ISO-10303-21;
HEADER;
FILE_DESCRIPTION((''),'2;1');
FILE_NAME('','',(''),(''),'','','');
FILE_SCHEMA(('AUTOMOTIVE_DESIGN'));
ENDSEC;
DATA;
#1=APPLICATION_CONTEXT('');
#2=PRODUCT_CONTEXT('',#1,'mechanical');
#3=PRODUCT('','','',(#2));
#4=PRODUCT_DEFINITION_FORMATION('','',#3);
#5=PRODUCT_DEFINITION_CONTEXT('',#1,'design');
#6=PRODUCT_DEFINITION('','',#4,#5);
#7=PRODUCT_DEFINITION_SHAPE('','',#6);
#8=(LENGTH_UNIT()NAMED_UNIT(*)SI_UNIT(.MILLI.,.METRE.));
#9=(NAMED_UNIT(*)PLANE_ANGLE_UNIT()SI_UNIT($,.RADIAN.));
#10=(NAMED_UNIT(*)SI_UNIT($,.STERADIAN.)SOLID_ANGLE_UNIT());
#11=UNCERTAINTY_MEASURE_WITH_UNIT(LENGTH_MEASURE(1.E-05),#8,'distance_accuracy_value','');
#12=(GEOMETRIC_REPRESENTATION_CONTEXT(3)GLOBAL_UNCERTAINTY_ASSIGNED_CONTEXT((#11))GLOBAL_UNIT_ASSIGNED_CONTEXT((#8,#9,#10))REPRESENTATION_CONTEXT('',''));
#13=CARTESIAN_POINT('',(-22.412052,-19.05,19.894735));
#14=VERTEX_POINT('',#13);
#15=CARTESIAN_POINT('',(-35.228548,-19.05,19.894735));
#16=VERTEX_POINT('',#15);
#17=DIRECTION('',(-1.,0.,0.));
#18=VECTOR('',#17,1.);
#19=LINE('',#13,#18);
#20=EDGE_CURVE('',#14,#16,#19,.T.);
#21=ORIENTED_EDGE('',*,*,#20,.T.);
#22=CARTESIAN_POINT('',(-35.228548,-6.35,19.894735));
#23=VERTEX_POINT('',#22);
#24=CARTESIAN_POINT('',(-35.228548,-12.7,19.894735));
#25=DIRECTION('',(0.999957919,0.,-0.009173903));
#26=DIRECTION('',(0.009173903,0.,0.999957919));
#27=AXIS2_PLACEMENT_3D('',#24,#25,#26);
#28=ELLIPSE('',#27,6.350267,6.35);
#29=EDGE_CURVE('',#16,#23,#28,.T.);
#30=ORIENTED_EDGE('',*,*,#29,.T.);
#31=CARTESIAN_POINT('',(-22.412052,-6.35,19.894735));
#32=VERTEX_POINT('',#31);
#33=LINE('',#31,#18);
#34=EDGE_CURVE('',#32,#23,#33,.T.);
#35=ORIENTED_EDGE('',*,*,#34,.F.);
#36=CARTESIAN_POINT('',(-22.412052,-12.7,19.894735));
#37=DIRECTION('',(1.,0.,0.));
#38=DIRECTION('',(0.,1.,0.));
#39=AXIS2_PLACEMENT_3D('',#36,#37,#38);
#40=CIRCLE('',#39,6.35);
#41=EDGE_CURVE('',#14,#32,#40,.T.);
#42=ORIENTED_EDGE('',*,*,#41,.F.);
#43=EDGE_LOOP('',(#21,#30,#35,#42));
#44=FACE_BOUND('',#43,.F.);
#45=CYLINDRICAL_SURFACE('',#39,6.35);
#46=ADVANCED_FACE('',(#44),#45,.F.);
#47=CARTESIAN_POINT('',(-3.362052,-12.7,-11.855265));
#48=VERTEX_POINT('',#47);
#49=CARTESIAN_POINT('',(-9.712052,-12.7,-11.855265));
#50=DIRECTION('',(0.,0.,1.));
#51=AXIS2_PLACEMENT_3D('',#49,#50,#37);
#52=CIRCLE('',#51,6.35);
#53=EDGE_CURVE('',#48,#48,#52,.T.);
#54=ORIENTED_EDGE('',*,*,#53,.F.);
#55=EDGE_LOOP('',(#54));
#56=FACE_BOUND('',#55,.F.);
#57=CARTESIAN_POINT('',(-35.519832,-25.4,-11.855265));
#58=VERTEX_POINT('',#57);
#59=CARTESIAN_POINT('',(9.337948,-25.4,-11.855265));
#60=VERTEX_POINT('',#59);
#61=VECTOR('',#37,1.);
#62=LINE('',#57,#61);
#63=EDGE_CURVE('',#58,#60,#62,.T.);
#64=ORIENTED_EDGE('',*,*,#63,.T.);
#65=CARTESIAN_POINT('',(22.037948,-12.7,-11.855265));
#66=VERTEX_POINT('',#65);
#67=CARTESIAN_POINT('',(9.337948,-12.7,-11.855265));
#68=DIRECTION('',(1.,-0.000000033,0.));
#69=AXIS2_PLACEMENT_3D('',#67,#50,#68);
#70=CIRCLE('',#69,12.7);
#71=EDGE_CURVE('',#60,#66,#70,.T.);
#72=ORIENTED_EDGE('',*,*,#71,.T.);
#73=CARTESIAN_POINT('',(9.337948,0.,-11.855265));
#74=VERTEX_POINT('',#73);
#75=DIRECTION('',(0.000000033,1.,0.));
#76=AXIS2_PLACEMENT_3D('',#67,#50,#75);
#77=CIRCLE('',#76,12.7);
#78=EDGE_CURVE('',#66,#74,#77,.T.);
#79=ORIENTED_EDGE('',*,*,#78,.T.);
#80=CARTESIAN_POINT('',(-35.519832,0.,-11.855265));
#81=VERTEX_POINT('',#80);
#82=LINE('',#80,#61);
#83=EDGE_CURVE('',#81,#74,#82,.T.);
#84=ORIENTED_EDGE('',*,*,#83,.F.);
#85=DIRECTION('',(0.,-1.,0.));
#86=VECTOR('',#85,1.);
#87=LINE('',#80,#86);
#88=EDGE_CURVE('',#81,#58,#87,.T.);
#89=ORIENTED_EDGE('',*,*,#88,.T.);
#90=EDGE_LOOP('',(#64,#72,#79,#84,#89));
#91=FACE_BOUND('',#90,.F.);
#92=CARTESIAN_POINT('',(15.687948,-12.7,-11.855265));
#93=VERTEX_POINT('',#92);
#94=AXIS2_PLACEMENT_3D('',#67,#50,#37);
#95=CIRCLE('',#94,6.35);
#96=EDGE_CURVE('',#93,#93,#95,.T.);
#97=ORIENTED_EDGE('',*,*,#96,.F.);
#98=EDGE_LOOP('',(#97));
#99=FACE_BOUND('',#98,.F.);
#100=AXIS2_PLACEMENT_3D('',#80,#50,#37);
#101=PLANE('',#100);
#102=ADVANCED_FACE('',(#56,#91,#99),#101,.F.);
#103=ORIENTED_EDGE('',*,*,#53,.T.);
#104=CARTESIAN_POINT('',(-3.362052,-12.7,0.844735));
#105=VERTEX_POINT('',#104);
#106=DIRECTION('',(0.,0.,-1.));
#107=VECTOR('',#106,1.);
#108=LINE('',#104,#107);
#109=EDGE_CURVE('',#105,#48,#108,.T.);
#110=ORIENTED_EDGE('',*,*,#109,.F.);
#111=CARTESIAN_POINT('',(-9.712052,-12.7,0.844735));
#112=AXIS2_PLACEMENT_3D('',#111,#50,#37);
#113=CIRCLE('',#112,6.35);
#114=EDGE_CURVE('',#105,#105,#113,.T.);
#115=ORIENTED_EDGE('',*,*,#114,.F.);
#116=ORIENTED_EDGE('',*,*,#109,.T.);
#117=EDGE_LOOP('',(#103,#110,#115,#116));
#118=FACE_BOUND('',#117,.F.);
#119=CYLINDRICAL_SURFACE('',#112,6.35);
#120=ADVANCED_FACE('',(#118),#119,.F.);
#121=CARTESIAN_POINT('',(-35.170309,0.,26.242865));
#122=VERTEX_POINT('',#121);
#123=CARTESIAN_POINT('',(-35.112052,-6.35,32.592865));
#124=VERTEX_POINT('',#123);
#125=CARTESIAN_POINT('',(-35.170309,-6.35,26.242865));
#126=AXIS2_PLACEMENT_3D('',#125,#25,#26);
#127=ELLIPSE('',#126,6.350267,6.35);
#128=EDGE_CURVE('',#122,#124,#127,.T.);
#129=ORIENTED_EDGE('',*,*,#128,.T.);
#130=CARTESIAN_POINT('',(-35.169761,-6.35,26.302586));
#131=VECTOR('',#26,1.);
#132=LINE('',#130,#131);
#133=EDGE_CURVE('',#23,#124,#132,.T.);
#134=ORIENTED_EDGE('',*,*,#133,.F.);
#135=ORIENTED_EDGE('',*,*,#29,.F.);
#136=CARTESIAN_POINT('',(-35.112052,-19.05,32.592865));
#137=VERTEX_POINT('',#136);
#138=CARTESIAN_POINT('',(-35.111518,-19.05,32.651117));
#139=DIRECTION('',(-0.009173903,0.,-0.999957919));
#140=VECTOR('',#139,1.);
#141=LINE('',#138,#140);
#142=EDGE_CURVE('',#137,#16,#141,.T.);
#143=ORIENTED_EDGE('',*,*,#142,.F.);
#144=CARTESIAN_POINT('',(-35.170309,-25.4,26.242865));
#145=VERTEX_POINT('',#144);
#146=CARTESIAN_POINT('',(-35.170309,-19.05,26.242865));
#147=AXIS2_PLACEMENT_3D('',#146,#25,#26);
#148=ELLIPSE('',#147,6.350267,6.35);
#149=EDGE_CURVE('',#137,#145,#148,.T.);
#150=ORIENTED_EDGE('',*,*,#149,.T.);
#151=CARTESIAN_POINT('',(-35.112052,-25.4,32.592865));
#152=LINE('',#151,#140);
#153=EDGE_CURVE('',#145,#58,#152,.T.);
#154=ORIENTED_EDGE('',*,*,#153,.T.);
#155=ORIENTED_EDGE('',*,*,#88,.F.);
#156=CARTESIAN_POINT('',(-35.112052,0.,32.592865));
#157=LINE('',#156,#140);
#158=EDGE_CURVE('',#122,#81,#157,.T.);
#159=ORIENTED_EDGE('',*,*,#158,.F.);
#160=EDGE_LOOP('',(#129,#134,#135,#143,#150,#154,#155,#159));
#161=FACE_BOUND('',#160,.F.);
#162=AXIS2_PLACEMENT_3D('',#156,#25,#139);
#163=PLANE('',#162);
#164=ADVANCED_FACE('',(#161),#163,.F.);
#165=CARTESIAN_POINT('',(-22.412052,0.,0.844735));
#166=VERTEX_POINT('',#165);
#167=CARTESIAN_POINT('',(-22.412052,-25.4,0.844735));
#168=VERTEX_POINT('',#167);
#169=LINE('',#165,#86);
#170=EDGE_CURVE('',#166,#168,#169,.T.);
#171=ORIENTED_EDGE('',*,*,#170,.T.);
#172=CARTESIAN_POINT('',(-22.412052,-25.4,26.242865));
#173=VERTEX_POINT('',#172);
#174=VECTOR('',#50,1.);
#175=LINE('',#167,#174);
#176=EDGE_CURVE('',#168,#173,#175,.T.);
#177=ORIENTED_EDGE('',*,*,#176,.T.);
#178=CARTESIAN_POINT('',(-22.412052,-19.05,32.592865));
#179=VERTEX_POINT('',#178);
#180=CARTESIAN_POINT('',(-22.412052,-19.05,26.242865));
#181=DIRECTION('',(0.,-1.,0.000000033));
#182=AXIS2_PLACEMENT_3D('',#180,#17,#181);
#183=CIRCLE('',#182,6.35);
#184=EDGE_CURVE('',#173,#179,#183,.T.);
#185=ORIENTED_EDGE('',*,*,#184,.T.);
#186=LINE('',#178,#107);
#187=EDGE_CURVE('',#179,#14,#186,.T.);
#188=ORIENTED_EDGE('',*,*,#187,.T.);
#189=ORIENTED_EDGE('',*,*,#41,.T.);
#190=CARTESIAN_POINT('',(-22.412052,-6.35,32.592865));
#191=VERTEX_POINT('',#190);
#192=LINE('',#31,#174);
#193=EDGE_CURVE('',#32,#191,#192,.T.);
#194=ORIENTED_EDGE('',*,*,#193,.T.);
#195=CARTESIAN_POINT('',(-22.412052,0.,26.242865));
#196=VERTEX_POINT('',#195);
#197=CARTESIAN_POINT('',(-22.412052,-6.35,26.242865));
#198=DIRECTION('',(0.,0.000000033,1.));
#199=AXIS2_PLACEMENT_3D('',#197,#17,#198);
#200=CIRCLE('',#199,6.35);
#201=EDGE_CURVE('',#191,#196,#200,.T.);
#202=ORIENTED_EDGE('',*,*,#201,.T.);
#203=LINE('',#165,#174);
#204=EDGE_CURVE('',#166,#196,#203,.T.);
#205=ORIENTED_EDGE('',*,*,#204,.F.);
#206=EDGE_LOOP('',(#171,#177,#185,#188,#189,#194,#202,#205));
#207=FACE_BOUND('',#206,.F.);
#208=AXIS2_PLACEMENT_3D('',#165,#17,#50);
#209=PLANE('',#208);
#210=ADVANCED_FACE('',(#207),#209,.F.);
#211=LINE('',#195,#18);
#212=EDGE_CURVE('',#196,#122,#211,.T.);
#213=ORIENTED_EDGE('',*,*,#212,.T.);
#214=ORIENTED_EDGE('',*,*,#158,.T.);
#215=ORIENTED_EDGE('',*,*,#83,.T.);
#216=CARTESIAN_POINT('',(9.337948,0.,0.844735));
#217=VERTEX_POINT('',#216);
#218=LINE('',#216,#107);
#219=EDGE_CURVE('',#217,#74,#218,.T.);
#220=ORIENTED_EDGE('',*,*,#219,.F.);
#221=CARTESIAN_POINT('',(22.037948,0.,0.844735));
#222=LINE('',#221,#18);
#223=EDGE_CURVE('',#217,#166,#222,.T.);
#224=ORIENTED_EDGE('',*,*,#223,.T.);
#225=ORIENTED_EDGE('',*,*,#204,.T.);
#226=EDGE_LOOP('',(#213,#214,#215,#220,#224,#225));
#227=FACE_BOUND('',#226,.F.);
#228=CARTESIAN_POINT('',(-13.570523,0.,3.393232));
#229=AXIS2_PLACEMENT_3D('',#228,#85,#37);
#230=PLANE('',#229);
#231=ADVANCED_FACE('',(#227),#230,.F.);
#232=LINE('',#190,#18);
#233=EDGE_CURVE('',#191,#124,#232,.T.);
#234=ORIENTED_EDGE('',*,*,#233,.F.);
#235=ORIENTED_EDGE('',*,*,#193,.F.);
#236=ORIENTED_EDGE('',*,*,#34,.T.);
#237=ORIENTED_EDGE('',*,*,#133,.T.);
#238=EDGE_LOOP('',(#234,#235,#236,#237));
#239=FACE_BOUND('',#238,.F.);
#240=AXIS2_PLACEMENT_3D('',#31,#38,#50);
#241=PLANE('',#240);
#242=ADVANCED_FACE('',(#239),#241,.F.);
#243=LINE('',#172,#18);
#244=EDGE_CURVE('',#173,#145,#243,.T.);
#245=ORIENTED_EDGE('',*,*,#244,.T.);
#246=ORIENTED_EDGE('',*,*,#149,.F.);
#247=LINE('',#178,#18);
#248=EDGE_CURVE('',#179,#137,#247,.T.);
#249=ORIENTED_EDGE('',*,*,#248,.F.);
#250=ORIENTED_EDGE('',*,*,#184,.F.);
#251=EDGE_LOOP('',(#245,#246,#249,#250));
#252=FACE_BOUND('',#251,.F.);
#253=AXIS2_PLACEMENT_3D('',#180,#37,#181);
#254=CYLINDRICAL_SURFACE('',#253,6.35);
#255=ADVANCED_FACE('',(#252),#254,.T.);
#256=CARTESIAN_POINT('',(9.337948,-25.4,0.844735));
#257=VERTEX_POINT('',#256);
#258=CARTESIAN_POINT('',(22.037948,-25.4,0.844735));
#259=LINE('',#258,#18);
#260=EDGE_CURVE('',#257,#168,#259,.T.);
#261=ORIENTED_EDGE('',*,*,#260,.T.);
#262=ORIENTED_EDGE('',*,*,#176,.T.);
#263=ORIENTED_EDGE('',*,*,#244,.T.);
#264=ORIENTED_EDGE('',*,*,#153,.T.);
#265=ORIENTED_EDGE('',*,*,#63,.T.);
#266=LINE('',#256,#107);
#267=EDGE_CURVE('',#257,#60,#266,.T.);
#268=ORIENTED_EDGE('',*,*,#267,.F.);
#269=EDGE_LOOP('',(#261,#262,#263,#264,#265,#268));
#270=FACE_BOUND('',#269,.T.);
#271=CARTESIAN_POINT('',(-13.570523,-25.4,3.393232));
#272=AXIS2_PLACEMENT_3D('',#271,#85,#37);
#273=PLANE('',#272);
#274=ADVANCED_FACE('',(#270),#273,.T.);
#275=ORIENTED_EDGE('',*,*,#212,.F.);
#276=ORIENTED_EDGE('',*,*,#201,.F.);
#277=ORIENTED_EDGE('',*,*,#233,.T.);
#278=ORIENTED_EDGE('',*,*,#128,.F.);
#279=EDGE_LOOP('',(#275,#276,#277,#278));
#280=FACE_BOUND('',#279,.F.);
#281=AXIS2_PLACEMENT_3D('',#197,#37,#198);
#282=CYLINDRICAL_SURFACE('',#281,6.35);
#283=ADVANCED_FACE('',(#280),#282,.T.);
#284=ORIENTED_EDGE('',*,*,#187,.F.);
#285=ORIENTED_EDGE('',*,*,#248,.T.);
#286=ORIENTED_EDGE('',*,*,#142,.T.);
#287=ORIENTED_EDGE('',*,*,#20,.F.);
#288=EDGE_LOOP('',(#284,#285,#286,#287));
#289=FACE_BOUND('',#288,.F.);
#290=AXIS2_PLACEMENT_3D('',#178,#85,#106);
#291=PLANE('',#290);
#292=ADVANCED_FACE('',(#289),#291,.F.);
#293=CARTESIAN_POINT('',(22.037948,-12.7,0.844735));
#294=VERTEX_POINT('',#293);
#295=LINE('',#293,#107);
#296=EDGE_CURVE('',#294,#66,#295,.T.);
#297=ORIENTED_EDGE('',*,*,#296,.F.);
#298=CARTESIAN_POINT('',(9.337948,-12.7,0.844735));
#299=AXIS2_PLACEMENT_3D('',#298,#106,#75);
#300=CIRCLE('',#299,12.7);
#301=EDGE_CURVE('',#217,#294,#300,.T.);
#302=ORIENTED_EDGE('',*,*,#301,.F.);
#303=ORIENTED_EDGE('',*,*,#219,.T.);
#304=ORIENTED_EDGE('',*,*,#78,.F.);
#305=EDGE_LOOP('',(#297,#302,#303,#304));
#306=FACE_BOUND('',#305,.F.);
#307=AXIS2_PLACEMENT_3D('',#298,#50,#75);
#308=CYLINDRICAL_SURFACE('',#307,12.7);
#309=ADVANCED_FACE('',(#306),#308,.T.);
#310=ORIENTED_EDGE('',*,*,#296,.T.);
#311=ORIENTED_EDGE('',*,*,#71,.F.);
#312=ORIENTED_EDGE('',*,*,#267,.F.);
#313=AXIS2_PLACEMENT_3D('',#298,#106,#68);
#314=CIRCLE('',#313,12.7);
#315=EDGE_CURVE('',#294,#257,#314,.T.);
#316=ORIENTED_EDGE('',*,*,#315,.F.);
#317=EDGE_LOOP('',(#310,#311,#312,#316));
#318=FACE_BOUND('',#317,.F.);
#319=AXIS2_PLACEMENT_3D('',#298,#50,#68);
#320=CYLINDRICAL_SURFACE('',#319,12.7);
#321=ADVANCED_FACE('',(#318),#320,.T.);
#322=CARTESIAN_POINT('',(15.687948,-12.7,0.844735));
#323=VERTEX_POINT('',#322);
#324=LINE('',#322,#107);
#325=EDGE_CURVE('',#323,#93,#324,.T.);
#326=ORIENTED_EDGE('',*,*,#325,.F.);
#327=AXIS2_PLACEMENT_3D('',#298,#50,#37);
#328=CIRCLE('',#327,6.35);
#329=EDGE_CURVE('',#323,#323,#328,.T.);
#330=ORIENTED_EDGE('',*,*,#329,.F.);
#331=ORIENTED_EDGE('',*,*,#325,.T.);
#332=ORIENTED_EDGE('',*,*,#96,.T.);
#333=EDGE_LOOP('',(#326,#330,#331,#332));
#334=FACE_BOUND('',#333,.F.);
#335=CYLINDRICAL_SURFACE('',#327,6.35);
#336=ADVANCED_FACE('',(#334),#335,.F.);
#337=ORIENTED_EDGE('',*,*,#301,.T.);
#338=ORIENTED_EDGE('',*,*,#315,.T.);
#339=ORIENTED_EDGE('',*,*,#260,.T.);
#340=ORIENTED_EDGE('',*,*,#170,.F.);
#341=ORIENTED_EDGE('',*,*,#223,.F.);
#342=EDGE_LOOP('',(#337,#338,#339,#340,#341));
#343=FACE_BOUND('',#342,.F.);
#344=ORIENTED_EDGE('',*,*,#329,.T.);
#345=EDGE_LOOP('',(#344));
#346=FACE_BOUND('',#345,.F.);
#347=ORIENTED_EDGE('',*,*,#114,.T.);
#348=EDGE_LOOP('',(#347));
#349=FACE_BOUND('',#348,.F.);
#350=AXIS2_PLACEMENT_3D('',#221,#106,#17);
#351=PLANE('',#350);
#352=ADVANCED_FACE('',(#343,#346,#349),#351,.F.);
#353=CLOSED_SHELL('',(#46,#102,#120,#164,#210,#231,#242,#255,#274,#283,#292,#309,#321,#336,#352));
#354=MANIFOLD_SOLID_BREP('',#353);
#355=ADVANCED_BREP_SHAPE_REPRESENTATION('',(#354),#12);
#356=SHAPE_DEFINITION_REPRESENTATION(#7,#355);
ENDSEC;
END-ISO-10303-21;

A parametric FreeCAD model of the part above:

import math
import FreeCAD as App
import Part
import Sketcher
from FreeCAD import Vector
Q = App.Units.Quantity

doc = App.newDocument("Part")
body = doc.addObject("PartDesign::Body", "Body")

sketch1 = body.newObject("Sketcher::SketchObject", "Sketch")
sketch1.AttachmentSupport = (doc.getObject("XZ_Plane"), [""])
sketch1.MapMode = "FlatFace"
sketch1.addGeometry([
    Part.LineSegment(Vector(-22, 33, 0), Vector(-35, 33, 0)),
    Part.LineSegment(Vector(-35, 33, 0), Vector(-36, -12, 0)),
    Part.LineSegment(Vector(-36, -12, 0), Vector(22, -12, 0)),
    Part.LineSegment(Vector(22, -12, 0), Vector(22, 1, 0)),
    Part.LineSegment(Vector(22, 1, 0), Vector(-22, 1, 0)),
    Part.LineSegment(Vector(-22, 1, 0), Vector(-22, 33, 0)),
], False)
sketch1.addConstraint([
    Sketcher.Constraint("Coincident", 0, 2, 1, 1),
    Sketcher.Constraint("Coincident", 1, 2, 2, 1),
    Sketcher.Constraint("Coincident", 2, 2, 3, 1),
    Sketcher.Constraint("Coincident", 3, 2, 4, 1),
    Sketcher.Constraint("Coincident", 4, 2, 5, 1),
    Sketcher.Constraint("Coincident", 5, 2, 0, 1),
    Sketcher.Constraint("Horizontal", 0),
    Sketcher.Constraint("Horizontal", 2),
    Sketcher.Constraint("Vertical", 3),
    Sketcher.Constraint("Horizontal", 4),
    Sketcher.Constraint("Vertical", 5),
    Sketcher.Constraint("Equal", 0, 3),
    Sketcher.Constraint("DistanceX", 0, 2, 0, 1, Q("0.5 in")),
    Sketcher.Constraint("DistanceX", 4, 2, 4, 1, Q("1.75 in")),
    Sketcher.Constraint("Distance", 1, Q("1.75 in")),
    Sketcher.Constraint("DistanceX", 2, 1, 2, 2, Q("57.55778 mm")),
    Sketcher.Constraint("DistanceX", 0, 2, -1, 1, Q("35.112052 mm")),
    Sketcher.Constraint("DistanceY", -1, 1, 0, 2, Q("32.592865 mm")),
])
pad1 = body.newObject("PartDesign::Pad", "Pad")
pad1.Profile = sketch1
pad1.Length = Q("1 in")

sketch2 = body.newObject("Sketcher::SketchObject", "Sketch001")
sketch2.AttachmentSupport = (doc.getObject("XY_Plane"), [""])
sketch2.MapMode = "FlatFace"
sketch2.AttachmentOffset = App.Placement(Vector(0, 0, 0.844735), App.Rotation())
sketch2.addGeometry([
    Part.Circle(Vector(-10, -13, 0), Vector(0, 0, 1), 6),
    Part.Circle(Vector(9, -13, 0), Vector(0, 0, 1), 6),
    Part.LineSegment(Vector(22, 0, 0), Vector(9, 0, 0)),
    Part.ArcOfCircle(Part.Circle(Vector(9, -13, 0), Vector(0, 0, 1), 13), math.radians(0), math.radians(90)),
    Part.LineSegment(Vector(22, -13, 0), Vector(22, 0, 0)),
    Part.LineSegment(Vector(22, -25, 0), Vector(22, -13, 0)),
    Part.ArcOfCircle(Part.Circle(Vector(9, -13, 0), Vector(0, 0, 1), 13), math.radians(-90), math.radians(0)),
    Part.LineSegment(Vector(9, -25, 0), Vector(22, -25, 0)),
], False)
sketch2.addConstraint([
    Sketcher.Constraint("Tangent", 2, 2, 3, 2),
    Sketcher.Constraint("Tangent", 3, 1, 4, 1),
    Sketcher.Constraint("Coincident", 4, 2, 2, 1),
    Sketcher.Constraint("Tangent", 5, 2, 6, 2),
    Sketcher.Constraint("Tangent", 6, 1, 7, 1),
    Sketcher.Constraint("Coincident", 7, 2, 5, 1),
    Sketcher.Constraint("Horizontal", 2),
    Sketcher.Constraint("Vertical", 4),
    Sketcher.Constraint("Vertical", 5),
    Sketcher.Constraint("Horizontal", 7),
    Sketcher.Constraint("Coincident", 3, 3, 1, 3),
    Sketcher.Constraint("Coincident", 6, 3, 1, 3),
    Sketcher.Constraint("Equal", 0, 1),
    Sketcher.Constraint("Equal", 3, 6),
    Sketcher.Constraint("PointOnObject", 2, 2, -1),
    Sketcher.Constraint("Horizontal", 0, 3, 1, 3),
    Sketcher.Constraint("Diameter", 0, Q("0.5 in")),
    Sketcher.Constraint("Radius", 3, Q("0.5 in")),
    Sketcher.Constraint("DistanceX", 0, 3, 1, 3, Q("0.75 in")),
    Sketcher.Constraint("DistanceX", -1, 1, 1, 3, Q("9.337948 mm")),
])
pocket1 = body.newObject("PartDesign::Pocket", "Pocket")
pocket1.Profile = sketch2
pocket1.Length = Q("1 in")

sketch3 = body.newObject("Sketcher::SketchObject", "Sketch002")
sketch3.AttachmentSupport = (doc.getObject("YZ_Plane"), [""])
sketch3.MapMode = "FlatFace"
sketch3.AttachmentOffset = App.Placement(Vector(0, 0, -22.412052), App.Rotation())
sketch3.addGeometry([
    Part.ArcOfCircle(Part.Circle(Vector(-19, 26, 0), Vector(0, 0, 1), 6), math.radians(90), math.radians(180)),
    Part.LineSegment(Vector(-19, 33, 0), Vector(-25, 33, 0)),
    Part.LineSegment(Vector(-25, 33, 0), Vector(-25, 26, 0)),
    Part.LineSegment(Vector(0, 33, 0), Vector(-6, 33, 0)),
    Part.ArcOfCircle(Part.Circle(Vector(-6, 26, 0), Vector(0, 0, 1), 6), math.radians(0), math.radians(90)),
    Part.LineSegment(Vector(0, 26, 0), Vector(0, 33, 0)),
], False)
sketch3.addConstraint([
    Sketcher.Constraint("Tangent", 0, 1, 1, 1),
    Sketcher.Constraint("Coincident", 1, 2, 2, 1),
    Sketcher.Constraint("Tangent", 2, 2, 0, 2),
    Sketcher.Constraint("Tangent", 3, 2, 4, 2),
    Sketcher.Constraint("Tangent", 4, 1, 5, 1),
    Sketcher.Constraint("Coincident", 5, 2, 3, 1),
    Sketcher.Constraint("Horizontal", 1),
    Sketcher.Constraint("Vertical", 2),
    Sketcher.Constraint("Horizontal", 3),
    Sketcher.Constraint("Vertical", 5),
    Sketcher.Constraint("Equal", 0, 4),
    Sketcher.Constraint("PointOnObject", 4, 1, -2),
    Sketcher.Constraint("Horizontal", 0, 3, 4, 3),
    Sketcher.Constraint("Radius", 0, Q("0.25 in")),
    Sketcher.Constraint("DistanceX", 1, 2, -1, 1, Q("1 in")),
    Sketcher.Constraint("DistanceY", -1, 1, 0, 3, Q("26.242865 mm")),
])
pocket2 = body.newObject("PartDesign::Pocket", "Pocket001")
pocket2.Profile = sketch3
pocket2.Length = Q("1 in")

sketch4 = body.newObject("Sketcher::SketchObject", "Sketch003")
sketch4.AttachmentSupport = (doc.getObject("YZ_Plane"), [""])
sketch4.MapMode = "FlatFace"
sketch4.AttachmentOffset = App.Placement(Vector(0, 0, -22.412052), App.Rotation())
sketch4.addGeometry([
    Part.LineSegment(Vector(-6, 20, 0), Vector(-6, 33, 0)),
    Part.LineSegment(Vector(-6, 33, 0), Vector(-19, 33, 0)),
    Part.LineSegment(Vector(-19, 33, 0), Vector(-19, 20, 0)),
    Part.ArcOfCircle(Part.Circle(Vector(-13, 20, 0), Vector(0, 0, 1), 6), math.radians(180), math.radians(360)),
], False)
sketch4.addConstraint([
    Sketcher.Constraint("Coincident", 0, 2, 1, 1),
    Sketcher.Constraint("Coincident", 1, 2, 2, 1),
    Sketcher.Constraint("Tangent", 2, 2, 3, 1),
    Sketcher.Constraint("Tangent", 3, 2, 0, 1),
    Sketcher.Constraint("Vertical", 0),
    Sketcher.Constraint("Horizontal", 1),
    Sketcher.Constraint("Vertical", 2),
    Sketcher.Constraint("Radius", 3, Q("0.25 in")),
    Sketcher.Constraint("DistanceX", 3, 3, -1, 1, Q("0.5 in")),
    Sketcher.Constraint("DistanceY", 0, 1, 0, 2, Q("12.69813 mm")),
    Sketcher.Constraint("DistanceY", -1, 1, 3, 3, Q("19.894735 mm")),
])
pocket3 = body.newObject("PartDesign::Pocket", "Pocket002")
pocket3.Profile = sketch4
pocket3.Length = Q("1 in")

doc.recompute()
